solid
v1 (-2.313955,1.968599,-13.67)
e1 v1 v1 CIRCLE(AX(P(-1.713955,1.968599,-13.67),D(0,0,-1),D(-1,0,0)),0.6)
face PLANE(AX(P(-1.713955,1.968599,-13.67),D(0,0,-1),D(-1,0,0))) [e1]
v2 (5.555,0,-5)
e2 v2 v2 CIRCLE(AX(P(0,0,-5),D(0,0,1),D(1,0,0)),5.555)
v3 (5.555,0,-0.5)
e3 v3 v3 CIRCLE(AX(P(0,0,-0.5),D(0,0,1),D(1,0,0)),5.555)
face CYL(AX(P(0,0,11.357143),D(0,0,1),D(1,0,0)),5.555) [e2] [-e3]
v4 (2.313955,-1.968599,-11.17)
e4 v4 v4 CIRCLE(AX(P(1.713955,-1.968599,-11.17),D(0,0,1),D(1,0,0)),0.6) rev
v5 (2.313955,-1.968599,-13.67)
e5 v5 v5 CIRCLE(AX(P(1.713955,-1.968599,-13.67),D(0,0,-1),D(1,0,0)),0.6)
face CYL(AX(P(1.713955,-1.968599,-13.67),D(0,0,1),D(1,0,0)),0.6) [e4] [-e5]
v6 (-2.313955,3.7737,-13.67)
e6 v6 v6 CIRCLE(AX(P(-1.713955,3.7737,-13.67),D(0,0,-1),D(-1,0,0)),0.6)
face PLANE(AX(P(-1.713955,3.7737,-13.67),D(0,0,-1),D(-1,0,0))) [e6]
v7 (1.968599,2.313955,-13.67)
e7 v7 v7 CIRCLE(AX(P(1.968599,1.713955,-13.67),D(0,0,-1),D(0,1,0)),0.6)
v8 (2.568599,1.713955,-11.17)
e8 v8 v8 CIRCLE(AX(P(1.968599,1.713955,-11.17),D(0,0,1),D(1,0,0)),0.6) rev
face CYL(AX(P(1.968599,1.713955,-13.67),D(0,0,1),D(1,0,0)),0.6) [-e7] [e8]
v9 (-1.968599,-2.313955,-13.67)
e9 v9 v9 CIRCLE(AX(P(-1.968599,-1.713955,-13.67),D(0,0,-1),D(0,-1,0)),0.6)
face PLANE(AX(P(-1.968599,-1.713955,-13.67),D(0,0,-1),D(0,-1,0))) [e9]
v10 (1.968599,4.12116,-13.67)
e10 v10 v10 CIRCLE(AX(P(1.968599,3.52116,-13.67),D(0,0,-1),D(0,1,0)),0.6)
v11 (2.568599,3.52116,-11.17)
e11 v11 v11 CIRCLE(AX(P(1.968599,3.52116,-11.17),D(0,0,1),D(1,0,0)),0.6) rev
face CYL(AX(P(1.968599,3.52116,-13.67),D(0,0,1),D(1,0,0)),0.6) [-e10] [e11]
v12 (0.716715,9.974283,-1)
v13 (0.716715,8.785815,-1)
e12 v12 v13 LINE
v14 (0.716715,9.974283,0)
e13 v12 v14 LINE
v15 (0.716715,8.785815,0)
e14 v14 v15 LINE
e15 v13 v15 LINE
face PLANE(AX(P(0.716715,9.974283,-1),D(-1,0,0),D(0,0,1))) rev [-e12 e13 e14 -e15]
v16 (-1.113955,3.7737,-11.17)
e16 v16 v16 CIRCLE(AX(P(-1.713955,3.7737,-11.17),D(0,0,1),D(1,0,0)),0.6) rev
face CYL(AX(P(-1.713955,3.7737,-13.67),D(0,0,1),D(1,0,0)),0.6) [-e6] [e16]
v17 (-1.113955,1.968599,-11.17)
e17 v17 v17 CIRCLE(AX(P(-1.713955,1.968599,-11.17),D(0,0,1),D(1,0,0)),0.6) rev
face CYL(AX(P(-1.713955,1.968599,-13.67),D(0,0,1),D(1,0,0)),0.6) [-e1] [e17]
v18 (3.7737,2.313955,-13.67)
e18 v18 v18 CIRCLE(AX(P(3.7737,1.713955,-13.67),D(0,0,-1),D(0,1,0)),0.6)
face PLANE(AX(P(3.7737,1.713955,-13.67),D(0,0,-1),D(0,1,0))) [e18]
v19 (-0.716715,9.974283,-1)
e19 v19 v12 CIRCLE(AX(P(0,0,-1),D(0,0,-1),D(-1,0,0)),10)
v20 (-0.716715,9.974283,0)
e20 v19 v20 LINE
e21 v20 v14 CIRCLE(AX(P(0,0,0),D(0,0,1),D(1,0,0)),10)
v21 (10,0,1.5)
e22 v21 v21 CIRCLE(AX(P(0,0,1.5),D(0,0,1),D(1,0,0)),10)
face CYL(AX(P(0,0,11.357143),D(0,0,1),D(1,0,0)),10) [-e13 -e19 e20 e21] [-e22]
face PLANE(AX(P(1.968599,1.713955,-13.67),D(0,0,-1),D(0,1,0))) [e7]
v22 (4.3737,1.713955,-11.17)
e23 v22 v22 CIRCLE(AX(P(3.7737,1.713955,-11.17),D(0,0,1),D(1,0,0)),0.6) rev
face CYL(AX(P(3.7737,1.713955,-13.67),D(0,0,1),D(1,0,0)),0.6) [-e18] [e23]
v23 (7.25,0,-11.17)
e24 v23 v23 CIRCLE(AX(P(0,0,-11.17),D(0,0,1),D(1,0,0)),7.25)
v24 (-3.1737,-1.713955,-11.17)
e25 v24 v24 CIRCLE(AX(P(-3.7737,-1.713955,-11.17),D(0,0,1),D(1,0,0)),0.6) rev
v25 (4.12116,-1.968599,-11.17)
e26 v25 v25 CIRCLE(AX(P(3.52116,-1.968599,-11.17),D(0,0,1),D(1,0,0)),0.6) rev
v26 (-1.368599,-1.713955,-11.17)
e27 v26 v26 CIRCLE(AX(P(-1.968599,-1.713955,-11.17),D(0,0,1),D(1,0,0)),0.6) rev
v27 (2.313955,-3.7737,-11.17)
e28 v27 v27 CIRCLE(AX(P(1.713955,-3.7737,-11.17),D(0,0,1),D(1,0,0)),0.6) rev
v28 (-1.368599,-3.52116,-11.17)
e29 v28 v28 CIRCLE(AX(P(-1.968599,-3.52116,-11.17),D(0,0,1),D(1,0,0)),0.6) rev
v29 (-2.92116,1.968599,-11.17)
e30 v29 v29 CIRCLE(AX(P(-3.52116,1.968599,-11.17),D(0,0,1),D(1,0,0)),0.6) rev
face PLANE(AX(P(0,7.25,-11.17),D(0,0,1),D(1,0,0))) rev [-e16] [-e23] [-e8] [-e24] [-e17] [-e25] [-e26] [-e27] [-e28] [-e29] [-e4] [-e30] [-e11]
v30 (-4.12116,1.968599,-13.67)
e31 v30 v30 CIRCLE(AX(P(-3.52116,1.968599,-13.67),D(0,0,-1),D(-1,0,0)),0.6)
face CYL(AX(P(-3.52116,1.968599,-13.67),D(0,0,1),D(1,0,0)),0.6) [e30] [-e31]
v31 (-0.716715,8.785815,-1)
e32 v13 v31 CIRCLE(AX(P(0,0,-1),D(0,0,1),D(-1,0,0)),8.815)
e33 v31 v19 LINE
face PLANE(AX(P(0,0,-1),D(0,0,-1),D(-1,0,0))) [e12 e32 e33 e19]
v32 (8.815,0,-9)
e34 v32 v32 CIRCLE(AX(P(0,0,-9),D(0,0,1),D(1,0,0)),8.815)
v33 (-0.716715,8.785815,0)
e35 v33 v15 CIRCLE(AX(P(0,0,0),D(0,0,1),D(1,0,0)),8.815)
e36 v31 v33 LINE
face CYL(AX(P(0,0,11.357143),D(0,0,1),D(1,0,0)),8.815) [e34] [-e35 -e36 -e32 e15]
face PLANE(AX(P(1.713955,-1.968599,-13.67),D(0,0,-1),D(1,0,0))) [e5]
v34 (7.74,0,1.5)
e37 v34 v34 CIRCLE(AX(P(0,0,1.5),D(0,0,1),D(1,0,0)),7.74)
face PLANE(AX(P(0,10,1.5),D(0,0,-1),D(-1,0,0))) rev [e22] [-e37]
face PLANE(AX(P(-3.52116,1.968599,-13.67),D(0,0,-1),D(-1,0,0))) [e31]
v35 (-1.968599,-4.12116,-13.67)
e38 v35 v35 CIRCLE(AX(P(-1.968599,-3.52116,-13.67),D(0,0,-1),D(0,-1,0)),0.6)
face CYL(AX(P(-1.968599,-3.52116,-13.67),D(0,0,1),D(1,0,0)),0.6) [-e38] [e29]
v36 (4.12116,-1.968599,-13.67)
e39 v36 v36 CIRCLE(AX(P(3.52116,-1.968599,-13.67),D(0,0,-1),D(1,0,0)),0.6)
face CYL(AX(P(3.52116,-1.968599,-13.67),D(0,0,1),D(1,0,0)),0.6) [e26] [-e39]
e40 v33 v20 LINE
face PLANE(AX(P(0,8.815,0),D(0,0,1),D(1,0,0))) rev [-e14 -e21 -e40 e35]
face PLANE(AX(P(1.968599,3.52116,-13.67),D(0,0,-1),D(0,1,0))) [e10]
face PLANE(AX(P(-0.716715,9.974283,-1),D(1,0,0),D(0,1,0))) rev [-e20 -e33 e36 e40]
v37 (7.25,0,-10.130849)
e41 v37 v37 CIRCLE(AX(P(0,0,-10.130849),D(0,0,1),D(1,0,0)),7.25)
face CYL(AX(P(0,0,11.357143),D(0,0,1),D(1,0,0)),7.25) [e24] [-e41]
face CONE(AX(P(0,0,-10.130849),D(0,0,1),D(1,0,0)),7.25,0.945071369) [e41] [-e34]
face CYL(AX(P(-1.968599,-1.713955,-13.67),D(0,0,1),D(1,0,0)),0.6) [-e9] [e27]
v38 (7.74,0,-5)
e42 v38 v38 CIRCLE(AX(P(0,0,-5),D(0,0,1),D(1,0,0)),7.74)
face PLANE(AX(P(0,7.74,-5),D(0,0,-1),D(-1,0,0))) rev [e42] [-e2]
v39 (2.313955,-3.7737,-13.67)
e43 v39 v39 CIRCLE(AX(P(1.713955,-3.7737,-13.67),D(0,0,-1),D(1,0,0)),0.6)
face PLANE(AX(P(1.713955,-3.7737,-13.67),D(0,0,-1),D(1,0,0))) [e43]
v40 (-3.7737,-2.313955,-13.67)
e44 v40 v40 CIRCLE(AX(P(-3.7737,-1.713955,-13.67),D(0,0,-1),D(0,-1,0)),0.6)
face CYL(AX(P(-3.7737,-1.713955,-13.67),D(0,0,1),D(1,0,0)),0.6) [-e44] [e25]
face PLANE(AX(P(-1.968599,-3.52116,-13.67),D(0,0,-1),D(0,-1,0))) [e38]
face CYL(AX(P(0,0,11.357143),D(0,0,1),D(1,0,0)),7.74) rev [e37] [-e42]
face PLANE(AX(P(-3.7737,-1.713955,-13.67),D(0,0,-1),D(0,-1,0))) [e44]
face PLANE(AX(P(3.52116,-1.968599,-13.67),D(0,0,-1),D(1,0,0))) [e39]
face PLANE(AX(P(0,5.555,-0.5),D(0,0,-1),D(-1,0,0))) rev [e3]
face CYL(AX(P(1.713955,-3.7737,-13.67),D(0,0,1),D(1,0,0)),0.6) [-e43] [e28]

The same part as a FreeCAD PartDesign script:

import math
import FreeCAD as App
import Part
import Sketcher
Q = App.Units.Quantity


def add_polygon(sketch, points):
    """Adds a closed chain of lines whose ends are joined by coincident constraints."""
    first, n = sketch.GeometryCount, len(points)
    for a, b in zip(points, points[1:] + points[:1]):
        sketch.addGeometry(Part.LineSegment(App.Vector(*a, 0), App.Vector(*b, 0)), False)
    for i in range(n):
        sketch.addConstraint(Sketcher.Constraint("Coincident", first + i, 2, first + (i + 1) % n, 1))

doc = App.newDocument("Part")
params = doc.addObject("Spreadsheet::Sheet", "Params")
for row, (alias, value) in enumerate([
    ("sketch1_height", "9 mm"),
    ("sketch1_height2", "1.5 mm"),
    ("sketch1_height3", "6.5 mm"),
    ("sketch1_height4", "4.5 mm"),
    ("sketch1_width", "2.26 mm"),
    ("revolution_angle", "360 deg"),
    ("sketch2_diameter", "1.2 mm"),
    ("pad1_length", "2.5 mm"),
    ("sketch3_radius", "10 mm"),
    ("pad2_length", "1 mm"),
], start=1):
    params.set(f"A{row}", alias)
    params.set(f"B{row}", "=" + value)
    params.setAlias(f"B{row}", alias)

body = doc.addObject("PartDesign::Body", "Body")

# Sketch on YZ plane
sketch1 = body.newObject("Sketcher::SketchObject", "Sketch")
sketch1.AttachmentSupport = (doc.getObject("YZ_Plane"), [""])
sketch1.MapMode = "FlatFace"
add_polygon(sketch1, [(8.8, 0), (10, 0), (10, 1.5), (7.7, 1.5), (7.7, -5), (5.6, -5), (5.6, -0.5), (0, -0.5), (0, -11.2), (7.2, -11.2), (7.2, -10.1), (8.8, -9)])  # lines 0-11
sketch1.addConstraint([
    Sketcher.Constraint("Horizontal", 0),
    Sketcher.Constraint("Vertical", 1),
    Sketcher.Constraint("Horizontal", 2),
    Sketcher.Constraint("Vertical", 3),
    Sketcher.Constraint("Horizontal", 4),
    Sketcher.Constraint("Vertical", 5),
    Sketcher.Constraint("Horizontal", 6),
    Sketcher.Constraint("Vertical", 7),
    Sketcher.Constraint("Horizontal", 8),
    Sketcher.Constraint("Vertical", 9),
    Sketcher.Constraint("Vertical", 11),
    Sketcher.Constraint("PointOnObject", 0, 2, -1),
    Sketcher.Constraint("PointOnObject", 6, 2, -2),
    Sketcher.Constraint("DistanceY", 11, 1, 11, 2, Q("9 mm")),
    Sketcher.Constraint("DistanceY", 1, 1, 1, 2, Q("1.5 mm")),
    Sketcher.Constraint("DistanceY", 3, 2, 3, 1, Q("6.5 mm")),
    Sketcher.Constraint("DistanceY", 5, 1, 5, 2, Q("4.5 mm")),
    Sketcher.Constraint("DistanceX", -1, 1, 0, 2, Q("10 mm")),
    Sketcher.Constraint("DistanceX", 2, 2, 2, 1, Q("2.26 mm")),
    Sketcher.Constraint("DistanceX", 8, 1, 8, 2, Q("7.25 mm")),
    Sketcher.Constraint("DistanceY", 7, 2, 7, 1, Q("10.67 mm")),
    Sketcher.Constraint("DistanceX", 0, 1, 0, 2, Q("1.185 mm")),
    Sketcher.Constraint("DistanceX", 4, 2, 4, 1, Q("2.185 mm")),
    Sketcher.Constraint("DistanceY", 9, 1, 9, 2, Q("1.039151 mm")),
])
sketch1.setExpression("Constraints[25]", "Params.sketch1_height")
sketch1.setExpression("Constraints[26]", "Params.sketch1_height2")
sketch1.setExpression("Constraints[27]", "Params.sketch1_height3")
sketch1.setExpression("Constraints[28]", "Params.sketch1_height4")
sketch1.setExpression("Constraints[30]", "Params.sketch1_width")
revolution = body.newObject("PartDesign::Revolution", "Revolution")
revolution.Profile = sketch1
revolution.ReferenceAxis = (sketch1, ["V_Axis"])
revolution.setExpression("Angle", "Params.revolution_angle")

# Sketch on XY plane
sketch2 = body.newObject("Sketcher::SketchObject", "Sketch001")
sketch2.AttachmentSupport = (doc.getObject("XY_Plane"), [""])
sketch2.MapMode = "FlatFace"
sketch2.AttachmentOffset = App.Placement(App.Vector(0, 0, -11.17), App.Rotation())
sketch2.addGeometry([
    Part.Circle(App.Vector(-1.7, 3.8, 0), App.Vector(0, 0, 1), 0.6),
    Part.Circle(App.Vector(-1.7, 2, 0), App.Vector(0, 0, 1), 0.6),
    Part.Circle(App.Vector(-3.5, 2, 0), App.Vector(0, 0, 1), 0.6),
], False)
sketch2.addConstraint([
    Sketcher.Constraint("Equal", 0, 1),
    Sketcher.Constraint("Equal", 1, 2),
    Sketcher.Constraint("Horizontal", 1, 3, 2, 3),
    Sketcher.Constraint("Vertical", 0, 3, 1, 3),
    Sketcher.Constraint("Diameter", 0, Q("1.2 mm")),
    Sketcher.Constraint("DistanceY", -1, 1, 0, 3, Q("3.7737 mm")),
    Sketcher.Constraint("DistanceY", -1, 1, 1, 3, Q("1.968599 mm")),
    Sketcher.Constraint("DistanceX", 2, 3, -1, 1, Q("3.52116 mm")),
    Sketcher.Constraint("DistanceX", 0, 3, -1, 1, Q("1.713955 mm")),
])
sketch2.setExpression("Constraints[4]", "Params.sketch2_diameter")
pad1 = body.newObject("PartDesign::Pad", "Pad")
pad1.Profile = sketch2
pad1.setExpression("Length", "Params.pad1_length")
pad1.Reversed = True
doc.recompute()

polarpattern = body.newObject("PartDesign::PolarPattern", "PolarPattern")
polarpattern.Originals = [pad1]
polarpattern.Axis = (doc.getObject("Z_Axis"), [""])
polarpattern.Angle = 360
polarpattern.Occurrences = 4
body.Tip = polarpattern

# Sketch on XY plane
sketch3 = body.newObject("Sketcher::SketchObject", "Sketch002")
sketch3.AttachmentSupport = (doc.getObject("XY_Plane"), [""])
sketch3.MapMode = "FlatFace"
sketch3.addGeometry([
    Part.LineSegment(App.Vector(0.7, 10, 0), App.Vector(0.7, 8.8, 0)),
    Part.ArcOfCircle(Part.Circle(App.Vector(0, 0, 0), App.Vector(0, 0, 1), 8.8), math.radians(85.34), math.radians(94.66)),
    Part.LineSegment(App.Vector(-0.7, 8.8, 0), App.Vector(-0.7, 10, 0)),
    Part.ArcOfCircle(Part.Circle(App.Vector(0, 0, 0), App.Vector(0, 0, 1), 10), math.radians(85.89), math.radians(94.11)),
], False)
sketch3.addConstraint([
    Sketcher.Constraint("Coincident", 0, 2, 1, 1),
    Sketcher.Constraint("Coincident", 1, 2, 2, 1),
    Sketcher.Constraint("Coincident", 2, 2, 3, 2),
    Sketcher.Constraint("Coincident", 3, 1, 0, 1),
    Sketcher.Constraint("Vertical", 0),
    Sketcher.Constraint("Vertical", 2),
    Sketcher.Constraint("Coincident", 1, 3, -1, 1),
    Sketcher.Constraint("Coincident", 3, 3, -1, 1),
    Sketcher.Constraint("Horizontal", 0, 2, 1, 2),
    Sketcher.Constraint("Radius", 3, Q("10 mm")),
    Sketcher.Constraint("Radius", 1, Q("8.815 mm")),
    Sketcher.Constraint("DistanceY", 0, 2, 0, 1, Q("1.188468 mm")),
])
sketch3.setExpression("Constraints[9]", "Params.sketch3_radius")
pad2 = body.newObject("PartDesign::Pad", "Pad001")
pad2.Profile = sketch3
pad2.setExpression("Length", "Params.pad2_length")
pad2.Reversed = True

doc.recompute()
